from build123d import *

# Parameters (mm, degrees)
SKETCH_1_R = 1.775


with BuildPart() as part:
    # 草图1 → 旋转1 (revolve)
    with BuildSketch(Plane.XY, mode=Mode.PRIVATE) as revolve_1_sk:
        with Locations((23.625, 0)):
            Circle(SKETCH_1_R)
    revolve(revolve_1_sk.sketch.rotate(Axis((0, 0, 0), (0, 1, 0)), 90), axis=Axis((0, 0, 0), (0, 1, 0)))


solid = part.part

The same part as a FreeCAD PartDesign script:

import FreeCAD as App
import Part
import Sketcher

doc = App.newDocument("Part")
body = doc.addObject("PartDesign::Body", "Body")

sketch1 = body.newObject("Sketcher::SketchObject", "Sketch")
sketch1.AttachmentSupport = (doc.getObject("XY_Plane"), [""])
sketch1.MapMode = "FlatFace"
sketch1.addGeometry(Part.Circle(App.Vector(23.6, 0, 0), App.Vector(0, 0, 1), 1.8), False)
sketch1.addConstraint([
    Sketcher.Constraint("PointOnObject", 0, 3, -1),
    Sketcher.Constraint("Diameter", 0, 3.55),
    Sketcher.Constraint("DistanceX", -1, 1, 0, 3, 23.625),
])
revolution = body.newObject("PartDesign::Revolution", "Revolution")
revolution.Profile = sketch1
revolution.ReferenceAxis = (sketch1, ["V_Axis"])
revolution.Angle = 360

doc.recompute()
